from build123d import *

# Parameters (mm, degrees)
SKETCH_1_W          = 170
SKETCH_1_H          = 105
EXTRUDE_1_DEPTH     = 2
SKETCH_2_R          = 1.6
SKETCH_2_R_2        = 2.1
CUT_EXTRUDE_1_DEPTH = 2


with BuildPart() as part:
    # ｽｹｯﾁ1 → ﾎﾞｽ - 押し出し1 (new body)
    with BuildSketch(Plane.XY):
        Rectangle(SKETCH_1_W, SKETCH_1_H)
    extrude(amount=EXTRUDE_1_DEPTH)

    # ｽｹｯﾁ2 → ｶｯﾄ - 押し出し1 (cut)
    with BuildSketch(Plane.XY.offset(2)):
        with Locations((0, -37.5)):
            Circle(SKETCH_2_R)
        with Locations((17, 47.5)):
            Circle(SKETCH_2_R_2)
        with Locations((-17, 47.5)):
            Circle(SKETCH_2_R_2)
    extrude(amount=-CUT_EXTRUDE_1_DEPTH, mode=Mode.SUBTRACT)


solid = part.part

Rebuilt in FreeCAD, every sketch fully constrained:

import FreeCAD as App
import Part
import Sketcher

doc = App.newDocument("Part")
params = doc.addObject("Spreadsheet::Sheet", "Params")
for row, (alias, value) in enumerate([
    ("sketch1_width", "170 mm"),
    ("sketch1_height", "105 mm"),
    ("pad1_length", "2 mm"),
    ("sketch2_diameter", "3.2 mm"),
    ("sketch2_diameter2", "4.2 mm"),
    ("pocket1_length", "2 mm"),
], start=1):
    params.set(f"A{row}", alias)
    params.set(f"B{row}", "=" + value)
    params.setAlias(f"B{row}", alias)

body = doc.addObject("PartDesign::Body", "Body")

# Sketch on XY plane
sketch1 = body.newObject("Sketcher::SketchObject", "Sketch")
sketch1.AttachmentSupport = (doc.getObject("XY_Plane"), [""])
sketch1.MapMode = "FlatFace"
sketch1.addGeometry([
    Part.LineSegment(App.Vector(-85, 52.5, 0), App.Vector(-85, -52.5, 0)),
    Part.LineSegment(App.Vector(-85, -52.5, 0), App.Vector(85, -52.5, 0)),
    Part.LineSegment(App.Vector(85, -52.5, 0), App.Vector(85, 52.5, 0)),
    Part.LineSegment(App.Vector(85, 52.5, 0), App.Vector(-85, 52.5, 0)),
], False)
sketch1.addConstraint([
    Sketcher.Constraint("Coincident", 0, 2, 1, 1),
    Sketcher.Constraint("Coincident", 1, 2, 2, 1),
    Sketcher.Constraint("Coincident", 2, 2, 3, 1),
    Sketcher.Constraint("Coincident", 3, 2, 0, 1),
    Sketcher.Constraint("Vertical", 0),
    Sketcher.Constraint("Horizontal", 1),
    Sketcher.Constraint("Vertical", 2),
    Sketcher.Constraint("Horizontal", 3),
    Sketcher.Constraint("Symmetric", 0, 2, 2, 2, -1, 1),
    Sketcher.Constraint("DistanceX", 1, 1, 1, 2, 170.0),
    Sketcher.Constraint("DistanceY", 0, 2, 0, 1, 105.0),
])
sketch1.setExpression("Constraints[9]", "Params.sketch1_width")
sketch1.setExpression("Constraints[10]", "Params.sketch1_height")
pad1 = body.newObject("PartDesign::Pad", "Pad")
pad1.Profile = sketch1
pad1.setExpression("Length", "Params.pad1_length")

# Sketch on XY plane
sketch2 = body.newObject("Sketcher::SketchObject", "Sketch001")
sketch2.AttachmentSupport = (doc.getObject("XY_Plane"), [""])
sketch2.MapMode = "FlatFace"
sketch2.AttachmentOffset = App.Placement(App.Vector(0, 0, 2), App.Rotation())
sketch2.addGeometry([
    Part.Circle(App.Vector(0, -37.5, 0), App.Vector(0, 0, 1), 1.6),
    Part.Circle(App.Vector(17, 47.5, 0), App.Vector(0, 0, 1), 2.1),
    Part.Circle(App.Vector(-17, 47.5, 0), App.Vector(0, 0, 1), 2.1),
], False)
sketch2.addConstraint([
    Sketcher.Constraint("Equal", 1, 2),
    Sketcher.Constraint("Symmetric", 1, 3, 2, 3, -2),
    Sketcher.Constraint("PointOnObject", 0, 3, -2),
    Sketcher.Constraint("Diameter", 0, 3.2),
    Sketcher.Constraint("Diameter", 1, 4.2),
    Sketcher.Constraint("DistanceX", -1, 1, 1, 3, 17.0),
    Sketcher.Constraint("DistanceY", 0, 3, 1, 3, 85.0),
    Sketcher.Constraint("DistanceY", 0, 3, -1, 1, 37.5),
])
sketch2.setExpression("Constraints[3]", "Params.sketch2_diameter")
sketch2.setExpression("Constraints[4]", "Params.sketch2_diameter2")
pocket1 = body.newObject("PartDesign::Pocket", "Pocket")
pocket1.Profile = sketch2
pocket1.setExpression("Length", "Params.pocket1_length")

doc.recompute()
